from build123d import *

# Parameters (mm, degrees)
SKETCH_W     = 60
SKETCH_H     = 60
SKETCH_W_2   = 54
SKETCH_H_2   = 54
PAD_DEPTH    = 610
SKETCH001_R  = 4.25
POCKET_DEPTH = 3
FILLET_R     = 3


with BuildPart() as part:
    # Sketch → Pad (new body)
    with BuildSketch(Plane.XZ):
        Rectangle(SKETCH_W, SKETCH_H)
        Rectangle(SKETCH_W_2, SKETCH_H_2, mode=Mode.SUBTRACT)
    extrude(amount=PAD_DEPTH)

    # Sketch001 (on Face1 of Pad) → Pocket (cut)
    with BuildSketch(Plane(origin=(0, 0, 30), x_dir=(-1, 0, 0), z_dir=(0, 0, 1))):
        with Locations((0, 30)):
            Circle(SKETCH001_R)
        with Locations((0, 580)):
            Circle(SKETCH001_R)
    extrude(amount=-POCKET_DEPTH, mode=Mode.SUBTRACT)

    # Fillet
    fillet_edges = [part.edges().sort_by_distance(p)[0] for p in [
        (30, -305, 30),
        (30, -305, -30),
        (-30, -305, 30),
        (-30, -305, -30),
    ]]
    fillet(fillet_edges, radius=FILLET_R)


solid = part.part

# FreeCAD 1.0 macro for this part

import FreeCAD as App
import Part
import Sketcher

V = App.Vector


def edges_at(feature, points):
    """Names of the edges that pass closest to the given points."""
    edges = feature.Shape.Edges
    near = lambda p: min(range(len(edges)), key=lambda i: edges[i].distToShape(Part.Vertex(*p))[0])
    return sorted({f"Edge{near(p) + 1}" for p in points})


def add_polygon(sketch, points):
    """Adds a closed chain of lines whose ends are joined by coincident constraints."""
    first, n = sketch.GeometryCount, len(points)
    for a, b in zip(points, points[1:] + points[:1]):
        sketch.addGeometry(Part.LineSegment(App.Vector(*a, 0), App.Vector(*b, 0)), False)
    for i in range(n):
        sketch.addConstraint(Sketcher.Constraint("Coincident", first + i, 2, first + (i + 1) % n, 1))

doc = App.newDocument("Part")
body = doc.addObject("PartDesign::Body", "Body")

sketch1 = doc.addObject("Sketcher::SketchObject", "Sketch")
body.addObject(sketch1)
sketch1.AttachmentSupport = (doc.XZ_Plane, [""])
sketch1.MapMode = "FlatFace"
add_polygon(sketch1, [(-30, 30), (-30, -30), (30, -30), (30, 30)])
add_polygon(sketch1, [(27, -27), (-27, -27), (-27, 27), (27, 27)])
sketch1.addConstraint([
    Sketcher.Constraint("Vertical", 0),
    Sketcher.Constraint("Horizontal", 1),
    Sketcher.Constraint("Vertical", 2),
    Sketcher.Constraint("Horizontal", 3),
    Sketcher.Constraint("Horizontal", 4),
    Sketcher.Constraint("Vertical", 5),
    Sketcher.Constraint("Horizontal", 6),
    Sketcher.Constraint("Vertical", 7),
    Sketcher.Constraint("Symmetric", 0, 2, 2, 2, -1, 1),
    Sketcher.Constraint("Symmetric", 4, 2, 6, 2, -1, 1),
    Sketcher.Constraint("Equal", 3, 0),
    Sketcher.Constraint("Equal", 6, 5),
    Sketcher.Constraint("DistanceX", 1, 1, 1, 2, 60.0),
    Sketcher.Constraint("DistanceX", 4, 2, 4, 1, 54.0),
])
pad1 = doc.addObject("PartDesign::Pad", "Pad")
body.addObject(pad1)
pad1.Profile = sketch1
pad1.Length = 610

sketch2 = doc.addObject("Sketcher::SketchObject", "Sketch001")
body.addObject(sketch2)
sketch2.AttachmentSupport = (doc.XY_Plane, [""])
sketch2.MapMode = "FlatFace"
sketch2.AttachmentOffset = App.Placement(V(0, 0, 30), App.Rotation())
sketch2.addGeometry([
    Part.Circle(V(0, -30, 0), V(0, 0, 1), 4.2),
    Part.Circle(V(0, -580, 0), V(0, 0, 1), 4.2),
], False)
sketch2.addConstraint([
    Sketcher.Constraint("Equal", 0, 1),
    Sketcher.Constraint("PointOnObject", 0, 3, -2),
    Sketcher.Constraint("PointOnObject", 1, 3, -2),
    Sketcher.Constraint("Diameter", 0, 8.5),
    Sketcher.Constraint("DistanceY", 0, 3, -1, 1, 30.0),
    Sketcher.Constraint("DistanceY", 1, 3, -1, 1, 580.0),
])
pocket1 = doc.addObject("PartDesign::Pocket", "Pocket")
body.addObject(pocket1)
pocket1.Profile = sketch2
pocket1.Length = 3
doc.recompute()

fillet = doc.addObject("PartDesign::Fillet", "Fillet")
body.addObject(fillet)
fillet.Base = (pocket1, edges_at(pocket1, [
    (30, -305, 30),
    (30, -305, -30),
    (-30, -305, 30),
    (-30, -305, -30),
]))
fillet.Radius = 3

doc.recompute()
